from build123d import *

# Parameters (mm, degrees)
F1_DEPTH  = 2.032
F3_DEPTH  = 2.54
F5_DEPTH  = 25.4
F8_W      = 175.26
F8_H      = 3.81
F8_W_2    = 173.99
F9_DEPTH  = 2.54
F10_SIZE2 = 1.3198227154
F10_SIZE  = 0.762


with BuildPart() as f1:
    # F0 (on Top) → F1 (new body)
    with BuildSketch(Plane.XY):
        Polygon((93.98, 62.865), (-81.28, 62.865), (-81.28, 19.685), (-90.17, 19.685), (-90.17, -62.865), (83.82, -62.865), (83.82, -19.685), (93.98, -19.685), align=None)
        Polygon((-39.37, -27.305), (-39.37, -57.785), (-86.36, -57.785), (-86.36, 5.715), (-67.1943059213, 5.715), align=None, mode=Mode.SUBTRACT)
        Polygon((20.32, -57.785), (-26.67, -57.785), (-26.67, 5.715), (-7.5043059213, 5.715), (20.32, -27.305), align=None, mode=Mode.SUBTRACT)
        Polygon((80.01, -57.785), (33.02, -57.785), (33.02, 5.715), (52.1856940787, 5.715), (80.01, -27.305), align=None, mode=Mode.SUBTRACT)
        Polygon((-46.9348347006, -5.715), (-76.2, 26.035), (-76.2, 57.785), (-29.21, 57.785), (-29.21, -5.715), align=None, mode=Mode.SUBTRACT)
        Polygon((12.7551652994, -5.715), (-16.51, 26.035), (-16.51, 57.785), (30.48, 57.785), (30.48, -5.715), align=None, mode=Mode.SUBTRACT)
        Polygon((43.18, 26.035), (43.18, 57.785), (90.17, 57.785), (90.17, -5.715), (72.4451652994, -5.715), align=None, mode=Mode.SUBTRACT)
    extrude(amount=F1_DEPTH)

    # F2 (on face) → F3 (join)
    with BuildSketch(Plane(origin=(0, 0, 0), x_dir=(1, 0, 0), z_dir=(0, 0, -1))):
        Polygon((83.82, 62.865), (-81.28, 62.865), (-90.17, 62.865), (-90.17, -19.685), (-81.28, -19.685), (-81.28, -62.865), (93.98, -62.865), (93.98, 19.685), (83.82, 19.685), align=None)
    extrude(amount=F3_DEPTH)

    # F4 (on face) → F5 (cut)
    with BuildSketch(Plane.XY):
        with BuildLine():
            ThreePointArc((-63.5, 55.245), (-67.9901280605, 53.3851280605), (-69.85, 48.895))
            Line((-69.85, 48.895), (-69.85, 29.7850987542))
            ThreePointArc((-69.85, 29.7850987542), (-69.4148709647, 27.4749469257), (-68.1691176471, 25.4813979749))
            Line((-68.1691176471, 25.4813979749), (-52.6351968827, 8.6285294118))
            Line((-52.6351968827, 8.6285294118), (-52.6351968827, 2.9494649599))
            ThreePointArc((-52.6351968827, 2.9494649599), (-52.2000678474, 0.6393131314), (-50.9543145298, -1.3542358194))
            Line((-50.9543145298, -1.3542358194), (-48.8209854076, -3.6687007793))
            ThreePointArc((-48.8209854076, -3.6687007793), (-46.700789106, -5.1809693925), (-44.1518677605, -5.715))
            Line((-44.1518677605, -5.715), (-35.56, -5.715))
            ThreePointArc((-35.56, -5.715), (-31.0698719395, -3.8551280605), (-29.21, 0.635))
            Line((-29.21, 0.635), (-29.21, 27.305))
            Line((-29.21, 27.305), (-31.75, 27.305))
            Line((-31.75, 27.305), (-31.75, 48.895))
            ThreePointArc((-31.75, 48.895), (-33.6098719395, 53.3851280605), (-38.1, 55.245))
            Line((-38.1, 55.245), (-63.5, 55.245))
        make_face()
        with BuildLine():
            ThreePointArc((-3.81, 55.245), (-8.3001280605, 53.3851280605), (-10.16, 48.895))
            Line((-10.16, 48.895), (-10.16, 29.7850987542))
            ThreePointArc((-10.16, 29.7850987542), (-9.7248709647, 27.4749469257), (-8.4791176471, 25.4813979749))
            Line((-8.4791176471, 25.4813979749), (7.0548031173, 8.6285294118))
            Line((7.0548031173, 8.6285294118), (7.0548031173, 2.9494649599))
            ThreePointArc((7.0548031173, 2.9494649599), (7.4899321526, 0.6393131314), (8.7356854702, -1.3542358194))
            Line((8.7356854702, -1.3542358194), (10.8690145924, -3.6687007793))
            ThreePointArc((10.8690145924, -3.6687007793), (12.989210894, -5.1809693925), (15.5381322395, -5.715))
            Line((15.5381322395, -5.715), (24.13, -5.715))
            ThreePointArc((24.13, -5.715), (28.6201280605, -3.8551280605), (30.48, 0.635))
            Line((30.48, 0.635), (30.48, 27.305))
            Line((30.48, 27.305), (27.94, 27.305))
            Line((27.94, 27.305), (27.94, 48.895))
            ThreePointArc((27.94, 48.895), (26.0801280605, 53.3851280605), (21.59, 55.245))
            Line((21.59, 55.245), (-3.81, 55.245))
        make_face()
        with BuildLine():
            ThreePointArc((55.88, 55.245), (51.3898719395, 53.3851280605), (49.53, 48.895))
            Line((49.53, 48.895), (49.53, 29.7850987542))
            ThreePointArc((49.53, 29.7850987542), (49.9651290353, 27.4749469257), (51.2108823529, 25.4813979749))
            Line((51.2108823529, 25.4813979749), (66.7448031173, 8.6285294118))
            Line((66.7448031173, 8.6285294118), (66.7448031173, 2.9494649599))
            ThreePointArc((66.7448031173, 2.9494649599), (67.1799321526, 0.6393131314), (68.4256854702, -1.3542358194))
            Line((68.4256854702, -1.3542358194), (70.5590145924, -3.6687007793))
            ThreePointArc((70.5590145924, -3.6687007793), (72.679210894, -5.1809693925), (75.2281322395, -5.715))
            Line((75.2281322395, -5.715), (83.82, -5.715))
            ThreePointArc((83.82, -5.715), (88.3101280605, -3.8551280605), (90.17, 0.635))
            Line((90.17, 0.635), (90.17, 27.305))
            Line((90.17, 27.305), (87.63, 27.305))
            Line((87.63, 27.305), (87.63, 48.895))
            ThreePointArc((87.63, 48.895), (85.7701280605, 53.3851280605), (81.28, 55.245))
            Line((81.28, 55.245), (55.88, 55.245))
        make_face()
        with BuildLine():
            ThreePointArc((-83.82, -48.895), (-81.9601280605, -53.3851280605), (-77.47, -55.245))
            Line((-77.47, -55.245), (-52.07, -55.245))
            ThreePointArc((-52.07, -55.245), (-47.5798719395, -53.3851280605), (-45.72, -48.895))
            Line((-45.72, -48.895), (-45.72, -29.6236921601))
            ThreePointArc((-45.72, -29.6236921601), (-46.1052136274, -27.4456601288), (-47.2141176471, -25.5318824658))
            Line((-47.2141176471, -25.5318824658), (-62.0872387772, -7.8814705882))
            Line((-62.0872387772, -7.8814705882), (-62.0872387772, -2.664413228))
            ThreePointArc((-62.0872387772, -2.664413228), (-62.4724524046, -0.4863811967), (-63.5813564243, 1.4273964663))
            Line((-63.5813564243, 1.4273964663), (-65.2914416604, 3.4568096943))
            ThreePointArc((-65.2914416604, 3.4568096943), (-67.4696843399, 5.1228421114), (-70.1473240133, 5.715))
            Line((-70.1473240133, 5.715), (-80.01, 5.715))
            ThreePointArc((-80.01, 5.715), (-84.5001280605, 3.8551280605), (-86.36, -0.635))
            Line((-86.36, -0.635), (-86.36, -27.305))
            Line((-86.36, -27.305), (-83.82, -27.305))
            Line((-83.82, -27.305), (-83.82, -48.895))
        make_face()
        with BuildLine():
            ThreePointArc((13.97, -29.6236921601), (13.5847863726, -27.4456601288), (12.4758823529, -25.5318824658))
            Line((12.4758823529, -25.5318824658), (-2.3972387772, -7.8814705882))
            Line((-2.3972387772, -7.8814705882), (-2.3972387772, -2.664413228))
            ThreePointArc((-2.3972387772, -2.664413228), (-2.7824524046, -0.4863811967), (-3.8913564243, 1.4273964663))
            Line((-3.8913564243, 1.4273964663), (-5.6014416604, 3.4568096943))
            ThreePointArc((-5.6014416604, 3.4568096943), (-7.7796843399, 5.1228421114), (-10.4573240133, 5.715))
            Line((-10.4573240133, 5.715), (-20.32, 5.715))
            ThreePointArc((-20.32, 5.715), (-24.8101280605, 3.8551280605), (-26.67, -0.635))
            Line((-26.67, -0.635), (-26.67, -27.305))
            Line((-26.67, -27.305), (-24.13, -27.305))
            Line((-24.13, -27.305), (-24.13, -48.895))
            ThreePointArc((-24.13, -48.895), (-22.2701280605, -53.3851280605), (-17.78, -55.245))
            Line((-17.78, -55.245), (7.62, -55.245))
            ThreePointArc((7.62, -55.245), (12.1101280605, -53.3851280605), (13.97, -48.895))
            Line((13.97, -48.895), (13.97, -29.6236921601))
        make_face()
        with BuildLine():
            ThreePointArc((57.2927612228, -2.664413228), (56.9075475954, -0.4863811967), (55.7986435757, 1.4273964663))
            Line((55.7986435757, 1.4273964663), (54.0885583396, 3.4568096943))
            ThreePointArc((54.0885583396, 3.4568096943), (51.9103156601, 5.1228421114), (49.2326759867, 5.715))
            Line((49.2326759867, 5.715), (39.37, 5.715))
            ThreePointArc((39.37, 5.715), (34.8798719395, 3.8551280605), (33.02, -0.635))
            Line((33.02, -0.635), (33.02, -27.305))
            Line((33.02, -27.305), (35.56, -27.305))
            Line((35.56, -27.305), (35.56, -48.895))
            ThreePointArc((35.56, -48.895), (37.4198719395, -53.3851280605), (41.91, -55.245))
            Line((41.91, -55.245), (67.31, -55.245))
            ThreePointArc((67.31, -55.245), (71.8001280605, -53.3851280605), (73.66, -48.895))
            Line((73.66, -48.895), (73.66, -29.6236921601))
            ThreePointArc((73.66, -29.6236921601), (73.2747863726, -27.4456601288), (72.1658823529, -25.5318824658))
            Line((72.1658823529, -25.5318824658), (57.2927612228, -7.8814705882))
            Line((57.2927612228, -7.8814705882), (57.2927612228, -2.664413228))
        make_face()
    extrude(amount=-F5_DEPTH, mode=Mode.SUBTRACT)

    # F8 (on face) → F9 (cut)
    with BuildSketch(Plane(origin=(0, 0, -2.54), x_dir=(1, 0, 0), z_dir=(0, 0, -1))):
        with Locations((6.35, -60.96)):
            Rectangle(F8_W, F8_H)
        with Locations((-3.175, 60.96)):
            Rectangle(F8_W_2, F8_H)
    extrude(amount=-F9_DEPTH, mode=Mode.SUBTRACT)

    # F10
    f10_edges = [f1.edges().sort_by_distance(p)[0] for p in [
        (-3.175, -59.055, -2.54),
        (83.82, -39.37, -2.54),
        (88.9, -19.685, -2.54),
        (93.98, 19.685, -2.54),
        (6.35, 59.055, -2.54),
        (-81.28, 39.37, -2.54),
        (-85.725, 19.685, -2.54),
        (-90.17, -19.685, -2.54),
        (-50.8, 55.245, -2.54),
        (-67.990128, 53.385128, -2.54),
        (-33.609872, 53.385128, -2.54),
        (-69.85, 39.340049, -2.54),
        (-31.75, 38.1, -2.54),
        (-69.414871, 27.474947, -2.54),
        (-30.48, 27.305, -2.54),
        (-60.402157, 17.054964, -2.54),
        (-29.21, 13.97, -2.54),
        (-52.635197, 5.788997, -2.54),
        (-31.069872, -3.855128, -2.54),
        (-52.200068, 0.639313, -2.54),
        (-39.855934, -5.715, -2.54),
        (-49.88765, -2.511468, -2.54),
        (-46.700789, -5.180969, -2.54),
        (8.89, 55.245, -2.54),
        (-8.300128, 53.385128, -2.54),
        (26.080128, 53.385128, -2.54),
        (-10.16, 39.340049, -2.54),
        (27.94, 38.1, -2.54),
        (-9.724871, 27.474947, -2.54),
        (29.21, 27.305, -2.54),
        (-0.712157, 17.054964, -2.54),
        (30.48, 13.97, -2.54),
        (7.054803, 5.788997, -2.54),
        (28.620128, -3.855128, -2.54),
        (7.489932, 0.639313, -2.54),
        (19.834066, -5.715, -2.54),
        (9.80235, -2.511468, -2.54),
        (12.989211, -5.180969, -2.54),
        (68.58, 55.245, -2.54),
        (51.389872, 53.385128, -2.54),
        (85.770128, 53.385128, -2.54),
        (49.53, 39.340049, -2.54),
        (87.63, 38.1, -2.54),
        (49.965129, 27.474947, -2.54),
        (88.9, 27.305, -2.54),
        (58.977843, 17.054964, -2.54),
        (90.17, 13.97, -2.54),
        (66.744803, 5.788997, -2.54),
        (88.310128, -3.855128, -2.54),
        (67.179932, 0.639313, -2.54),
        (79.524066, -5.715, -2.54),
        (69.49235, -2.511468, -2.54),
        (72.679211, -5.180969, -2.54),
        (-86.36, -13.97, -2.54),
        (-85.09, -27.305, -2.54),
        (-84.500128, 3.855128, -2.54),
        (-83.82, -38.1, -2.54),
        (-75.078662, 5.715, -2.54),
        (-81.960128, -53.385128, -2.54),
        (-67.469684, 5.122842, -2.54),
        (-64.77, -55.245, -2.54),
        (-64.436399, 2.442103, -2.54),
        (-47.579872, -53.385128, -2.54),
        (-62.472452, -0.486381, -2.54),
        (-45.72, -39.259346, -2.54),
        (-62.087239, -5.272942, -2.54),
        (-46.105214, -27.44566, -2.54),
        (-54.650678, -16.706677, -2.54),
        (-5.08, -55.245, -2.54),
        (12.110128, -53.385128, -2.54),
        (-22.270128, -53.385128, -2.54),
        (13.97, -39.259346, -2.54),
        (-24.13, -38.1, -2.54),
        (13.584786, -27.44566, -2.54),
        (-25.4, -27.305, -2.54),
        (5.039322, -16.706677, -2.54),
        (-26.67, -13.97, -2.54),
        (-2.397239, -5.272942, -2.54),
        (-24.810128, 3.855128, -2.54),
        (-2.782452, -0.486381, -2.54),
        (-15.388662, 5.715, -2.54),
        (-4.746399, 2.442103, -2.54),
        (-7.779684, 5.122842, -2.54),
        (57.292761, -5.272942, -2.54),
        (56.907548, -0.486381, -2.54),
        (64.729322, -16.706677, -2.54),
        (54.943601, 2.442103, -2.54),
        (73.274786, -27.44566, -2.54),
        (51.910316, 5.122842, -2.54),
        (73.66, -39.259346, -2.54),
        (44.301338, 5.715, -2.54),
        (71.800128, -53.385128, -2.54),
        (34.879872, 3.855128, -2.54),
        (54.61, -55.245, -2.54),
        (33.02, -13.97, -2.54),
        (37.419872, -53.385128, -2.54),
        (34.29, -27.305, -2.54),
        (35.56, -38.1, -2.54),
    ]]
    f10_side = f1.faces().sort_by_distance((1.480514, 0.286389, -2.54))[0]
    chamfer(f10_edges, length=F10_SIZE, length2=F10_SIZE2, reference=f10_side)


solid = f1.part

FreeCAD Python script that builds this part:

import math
import FreeCAD as App
import Part
import Sketcher
from FreeCAD import Vector
Q = App.Units.Quantity


def edges_at(feature, points):
    """Names of the edges that pass closest to the given points."""
    edges = feature.Shape.Edges
    near = lambda p: min(range(len(edges)), key=lambda i: edges[i].distToShape(Part.Vertex(*p))[0])
    return sorted({f"Edge{near(p) + 1}" for p in points})


def add_polygon(sketch, points):
    """Adds a closed chain of lines whose ends are joined by coincident constraints."""
    first, n = sketch.GeometryCount, len(points)
    for a, b in zip(points, points[1:] + points[:1]):
        sketch.addGeometry(Part.LineSegment(App.Vector(*a, 0), App.Vector(*b, 0)), False)
    for i in range(n):
        sketch.addConstraint(Sketcher.Constraint("Coincident", first + i, 2, first + (i + 1) % n, 1))

doc = App.newDocument("Part")
body = doc.addObject("PartDesign::Body", "Body")

sketch1 = doc.addObject("Sketcher::SketchObject", "Sketch")
body.addObject(sketch1)
sketch1.AttachmentSupport = (doc.XY_Plane, [""])
sketch1.MapMode = "FlatFace"
add_polygon(sketch1, [(93.98, 62.865), (-81.28, 62.865), (-81.28, 19.685), (-90.17, 19.685), (-90.17, -62.865), (83.82, -62.865), (83.82, -19.685), (93.98, -19.685)])
add_polygon(sketch1, [(-67.194306, 5.715), (-39.37, -27.305), (-39.37, -57.785), (-86.36, -57.785), (-86.36, 5.715)])
add_polygon(sketch1, [(20.32, -27.305), (20.32, -57.785), (-26.67, -57.785), (-26.67, 5.715), (-7.504306, 5.715)])
add_polygon(sketch1, [(80.01, -27.305), (80.01, -57.785), (33.02, -57.785), (33.02, 5.715), (52.185694, 5.715)])
add_polygon(sketch1, [(-29.21, -5.715), (-46.934835, -5.715), (-76.2, 26.035), (-76.2, 57.785), (-29.21, 57.785)])
add_polygon(sketch1, [(30.48, -5.715), (12.755165, -5.715), (-16.51, 26.035), (-16.51, 57.785), (30.48, 57.785)])
add_polygon(sketch1, [(72.445165, -5.715), (43.18, 26.035), (43.18, 57.785), (90.17, 57.785), (90.17, -5.715)])
sketch1.addConstraint([
    Sketcher.Constraint("Horizontal", 0),
    Sketcher.Constraint("Vertical", 1),
    Sketcher.Constraint("Horizontal", 2),
    Sketcher.Constraint("Vertical", 3),
    Sketcher.Constraint("Horizontal", 4),
    Sketcher.Constraint("Vertical", 5),
    Sketcher.Constraint("Horizontal", 6),
    Sketcher.Constraint("Vertical", 7),
    Sketcher.Constraint("Vertical", 9),
    Sketcher.Constraint("Horizontal", 10),
    Sketcher.Constraint("Vertical", 11),
    Sketcher.Constraint("Horizontal", 12),
    Sketcher.Constraint("Vertical", 13),
    Sketcher.Constraint("Horizontal", 14),
    Sketcher.Constraint("Vertical", 15),
    Sketcher.Constraint("Horizontal", 16),
    Sketcher.Constraint("Vertical", 18),
    Sketcher.Constraint("Horizontal", 19),
    Sketcher.Constraint("Vertical", 20),
    Sketcher.Constraint("Horizontal", 21),
    Sketcher.Constraint("Horizontal", 23),
    Sketcher.Constraint("Vertical", 25),
    Sketcher.Constraint("Horizontal", 26),
    Sketcher.Constraint("Vertical", 27),
    Sketcher.Constraint("Horizontal", 28),
    Sketcher.Constraint("Vertical", 30),
    Sketcher.Constraint("Horizontal", 31),
    Sketcher.Constraint("Vertical", 32),
    Sketcher.Constraint("Vertical", 34),
    Sketcher.Constraint("Horizontal", 35),
    Sketcher.Constraint("Vertical", 36),
    Sketcher.Constraint("Horizontal", 37),
    Sketcher.Constraint("Parallel", 8, 17),
    Sketcher.Constraint("Parallel", 17, 22),
    Sketcher.Constraint("Parallel", 24, 29),
    Sketcher.Constraint("Parallel", 29, 33),
    Sketcher.Constraint("Horizontal", 10, 2, 13, 2),
    Sketcher.Constraint("Horizontal", 12, 2, 15, 2),
    Sketcher.Constraint("Horizontal", 8, 2, 17, 2),
    Sketcher.Constraint("Horizontal", 14, 2, 18, 2),
    Sketcher.Constraint("Horizontal", 16, 2, 20, 2),
    Sketcher.Constraint("Horizontal", 17, 2, 22, 2),
    Sketcher.Constraint("Horizontal", 27, 2, 28, 2),
    Sketcher.Constraint("Horizontal", 24, 2, 29, 2),
    Sketcher.Constraint("Horizontal", 26, 2, 30, 2),
    Sketcher.Constraint("Horizontal", 29, 2, 33, 2),
    Sketcher.Constraint("Horizontal", 31, 2, 34, 2),
    Sketcher.Constraint("Horizontal", 32, 2, 36, 2),
    Sketcher.Constraint("Equal", 10, 14),
    Sketcher.Constraint("Equal", 14, 19),
    Sketcher.Constraint("Equal", 19, 26),
    Sketcher.Constraint("Equal", 23, 28),
    Sketcher.Constraint("Equal", 31, 35),
    Sketcher.Constraint("Equal", 1, 5),
    Sketcher.Constraint("Equal", 20, 27),
    Sketcher.Constraint("Equal", 22, 24),
    Sketcher.Constraint("DistanceX", 0, 2, 0, 1, Q("6.9 in")),
    Sketcher.Constraint("DistanceX", 6, 1, 6, 2, Q("0.4 in")),
    Sketcher.Constraint("DistanceY", 1, 2, 1, 1, Q("1.7 in")),
    Sketcher.Constraint("DistanceY", 9, 2, 9, 1, Q("1.2 in")),
    Sketcher.Constraint("DistanceY", 11, 1, 11, 2, Q("2.5 in")),
    Sketcher.Constraint("DistanceX", 24, 2, -1, 1, Q("3 in")),
    Sketcher.Constraint("DistanceX", 3, 2, 8, 2, Q("2 in")),
    Sketcher.Constraint("DistanceX", 19, 2, 4, 2, Q("2 in")),
    Sketcher.Constraint("DistanceY", 5, 2, 20, 2, Q("1 in")),
    Sketcher.Constraint("DistanceX", 34, 2, 7, 2, Q("2 in")),
    Sketcher.Constraint("Distance", 8, Q("1.7 in")),
    Sketcher.Constraint("DistanceX", 2, 2, 2, 1, Q("0.35 in")),
    Sketcher.Constraint("DistanceX", 10, 2, 10, 1, Q("1.85 in")),
    Sketcher.Constraint("DistanceY", 3, 2, 3, 1, Q("3.25 in")),
    Sketcher.Constraint("DistanceY", 25, 1, 25, 2, Q("1.25 in")),
    Sketcher.Constraint("DistanceX", 0, 2, -1, 1, Q("3.2 in")),
    Sketcher.Constraint("DistanceX", -1, 1, 13, 2, Q("0.8 in")),
    Sketcher.Constraint("DistanceX", -1, 1, 31, 2, Q("1.2 in")),
    Sketcher.Constraint("DistanceY", 12, 2, 24, 2, Q("0.8 in")),
    Sketcher.Constraint("DistanceY", -1, 1, 0, 2, Q("2.475 in")),
])
pad1 = doc.addObject("PartDesign::Pad", "Pad")
body.addObject(pad1)
pad1.Profile = sketch1
pad1.Length = Q("0.08 in")

sketch2 = doc.addObject("Sketcher::SketchObject", "Sketch001")
body.addObject(sketch2)
sketch2.AttachmentSupport = (doc.XY_Plane, [""])
sketch2.MapMode = "FlatFace"
add_polygon(sketch2, [(83.82, -62.865), (-90.17, -62.865), (-90.17, 19.685), (-81.28, 19.685), (-81.28, 62.865), (93.98, 62.865), (93.98, -19.685), (83.82, -19.685)])
sketch2.addConstraint([
    Sketcher.Constraint("Horizontal", 0),
    Sketcher.Constraint("Vertical", 1),
    Sketcher.Constraint("Horizontal", 2),
    Sketcher.Constraint("Vertical", 3),
    Sketcher.Constraint("Horizontal", 4),
    Sketcher.Constraint("Vertical", 5),
    Sketcher.Constraint("Horizontal", 6),
    Sketcher.Constraint("Vertical", 7),
    Sketcher.Constraint("Equal", 1, 5),
    Sketcher.Constraint("DistanceX", 4, 1, 4, 2, Q("6.9 in")),
    Sketcher.Constraint("DistanceX", 6, 2, 6, 1, Q("0.4 in")),
    Sketcher.Constraint("DistanceY", 3, 1, 3, 2, Q("1.7 in")),
    Sketcher.Constraint("DistanceX", 0, 2, 0, 1, Q("6.85 in")),
    Sketcher.Constraint("DistanceY", 1, 1, 1, 2, Q("3.25 in")),
    Sketcher.Constraint("DistanceX", 2, 2, -1, 1, Q("3.2 in")),
    Sketcher.Constraint("DistanceY", 0, 2, -1, 1, Q("2.475 in")),
])
pad2 = doc.addObject("PartDesign::Pad", "Pad001")
body.addObject(pad2)
pad2.Profile = sketch2
pad2.Length = Q("0.1 in")
pad2.Reversed = True

sketch3 = doc.addObject("Sketcher::SketchObject", "Sketch002")
body.addObject(sketch3)
sketch3.AttachmentSupport = (doc.XY_Plane, [""])
sketch3.MapMode = "FlatFace"
sketch3.addGeometry([
    Part.ArcOfCircle(Part.Circle(Vector(-63.5, 48.895, 0), Vector(0, 0, 1), 6.35), math.radians(90), math.radians(180)),
    Part.LineSegment(Vector(-69.85, 48.895, 0), Vector(-69.85, 29.785099, 0)),
    Part.ArcOfCircle(Part.Circle(Vector(-63.5, 29.785099, 0), Vector(0, 0, 1), 6.35), math.radians(180), math.radians(222.667925)),
    Part.LineSegment(Vector(-68.169118, 25.481398, 0), Vector(-52.635197, 8.628529, 0)),
    Part.LineSegment(Vector(-52.635197, 8.628529, 0), Vector(-52.635197, 2.949465, 0)),
    Part.ArcOfCircle(Part.Circle(Vector(-46.285197, 2.949465, 0), Vector(0, 0, 1), 6.35), math.radians(180), math.radians(222.667925)),
    Part.LineSegment(Vector(-50.954315, -1.354236, 0), Vector(-48.820985, -3.668701, 0)),
    Part.ArcOfCircle(Part.Circle(Vector(-44.151868, 0.635, 0), Vector(0, 0, 1), 6.35), math.radians(-137.332075), math.radians(-90)),
    Part.LineSegment(Vector(-44.151868, -5.715, 0), Vector(-35.56, -5.715, 0)),
    Part.ArcOfCircle(Part.Circle(Vector(-35.56, 0.635, 0), Vector(0, 0, 1), 6.35), math.radians(-90), math.radians(0)),
    Part.LineSegment(Vector(-29.21, 0.635, 0), Vector(-29.21, 27.305, 0)),
    Part.LineSegment(Vector(-29.21, 27.305, 0), Vector(-31.75, 27.305, 0)),
    Part.LineSegment(Vector(-31.75, 27.305, 0), Vector(-31.75, 48.895, 0)),
    Part.ArcOfCircle(Part.Circle(Vector(-38.1, 48.895, 0), Vector(0, 0, 1), 6.35), math.radians(0), math.radians(90)),
    Part.LineSegment(Vector(-38.1, 55.245, 0), Vector(-63.5, 55.245, 0)),
    Part.ArcOfCircle(Part.Circle(Vector(-3.81, 48.895, 0), Vector(0, 0, 1), 6.35), math.radians(90), math.radians(180)),
    Part.LineSegment(Vector(-10.16, 48.895, 0), Vector(-10.16, 29.785099, 0)),
    Part.ArcOfCircle(Part.Circle(Vector(-3.81, 29.785099, 0), Vector(0, 0, 1), 6.35), math.radians(180), math.radians(222.667925)),
    Part.LineSegment(Vector(-8.479118, 25.481398, 0), Vector(7.054803, 8.628529, 0)),
    Part.LineSegment(Vector(7.054803, 8.628529, 0), Vector(7.054803, 2.949465, 0)),
    Part.ArcOfCircle(Part.Circle(Vector(13.404803, 2.949465, 0), Vector(0, 0, 1), 6.35), math.radians(180), math.radians(222.667925)),
    Part.LineSegment(Vector(8.735685, -1.354236, 0), Vector(10.869015, -3.668701, 0)),
    Part.ArcOfCircle(Part.Circle(Vector(15.538132, 0.635, 0), Vector(0, 0, 1), 6.35), math.radians(-137.332075), math.radians(-90)),
    Part.LineSegment(Vector(15.538132, -5.715, 0), Vector(24.13, -5.715, 0)),
    Part.ArcOfCircle(Part.Circle(Vector(24.13, 0.635, 0), Vector(0, 0, 1), 6.35), math.radians(-90), math.radians(0)),
    Part.LineSegment(Vector(30.48, 0.635, 0), Vector(30.48, 27.305, 0)),
    Part.LineSegment(Vector(30.48, 27.305, 0), Vector(27.94, 27.305, 0)),
    Part.LineSegment(Vector(27.94, 27.305, 0), Vector(27.94, 48.895, 0)),
    Part.ArcOfCircle(Part.Circle(Vector(21.59, 48.895, 0), Vector(0, 0, 1), 6.35), math.radians(0), math.radians(90)),
    Part.LineSegment(Vector(21.59, 55.245, 0), Vector(-3.81, 55.245, 0)),
    Part.ArcOfCircle(Part.Circle(Vector(55.88, 48.895, 0), Vector(0, 0, 1), 6.35), math.radians(90), math.radians(180)),
    Part.LineSegment(Vector(49.53, 48.895, 0), Vector(49.53, 29.785099, 0)),
    Part.ArcOfCircle(Part.Circle(Vector(55.88, 29.785099, 0), Vector(0, 0, 1), 6.35), math.radians(180), math.radians(222.667925)),
    Part.LineSegment(Vector(51.210882, 25.481398, 0), Vector(66.744803, 8.628529, 0)),
    Part.LineSegment(Vector(66.744803, 8.628529, 0), Vector(66.744803, 2.949465, 0)),
    Part.ArcOfCircle(Part.Circle(Vector(73.094803, 2.949465, 0), Vector(0, 0, 1), 6.35), math.radians(180), math.radians(222.667925)),
    Part.LineSegment(Vector(68.425685, -1.354236, 0), Vector(70.559015, -3.668701, 0)),
    Part.ArcOfCircle(Part.Circle(Vector(75.228132, 0.635, 0), Vector(0, 0, 1), 6.35), math.radians(-137.332075), math.radians(-90)),
    Part.LineSegment(Vector(75.228132, -5.715, 0), Vector(83.82, -5.715, 0)),
    Part.ArcOfCircle(Part.Circle(Vector(83.82, 0.635, 0), Vector(0, 0, 1), 6.35), math.radians(-90), math.radians(0)),
    Part.LineSegment(Vector(90.17, 0.635, 0), Vector(90.17, 27.305, 0)),
    Part.LineSegment(Vector(90.17, 27.305, 0), Vector(87.63, 27.305, 0)),
    Part.LineSegment(Vector(87.63, 27.305, 0), Vector(87.63, 48.895, 0)),
    Part.ArcOfCircle(Part.Circle(Vector(81.28, 48.895, 0), Vector(0, 0, 1), 6.35), math.radians(0), math.radians(90)),
    Part.LineSegment(Vector(81.28, 55.245, 0), Vector(55.88, 55.245, 0)),
    Part.ArcOfCircle(Part.Circle(Vector(-77.47, -48.895, 0), Vector(0, 0, 1), 6.35), math.radians(180), math.radians(270)),
    Part.LineSegment(Vector(-77.47, -55.245, 0), Vector(-52.07, -55.245, 0)),
    Part.ArcOfCircle(Part.Circle(Vector(-52.07, -48.895, 0), Vector(0, 0, 1), 6.35), math.radians(-90), math.radians(0)),
    Part.LineSegment(Vector(-45.72, -48.895, 0), Vector(-45.72, -29.623692, 0)),
    Part.ArcOfCircle(Part.Circle(Vector(-52.07, -29.623692, 0), Vector(0, 0, 1), 6.35), math.radians(0), math.radians(40.119167)),
    Part.LineSegment(Vector(-47.214118, -25.531882, 0), Vector(-62.087239, -7.881471, 0)),
    Part.LineSegment(Vector(-62.087239, -7.881471, 0), Vector(-62.087239, -2.664413, 0)),
    Part.ArcOfCircle(Part.Circle(Vector(-68.437239, -2.664413, 0), Vector(0, 0, 1), 6.35), math.radians(0), math.radians(40.119167)),
    Part.LineSegment(Vector(-63.581356, 1.427396, 0), Vector(-65.291442, 3.45681, 0)),
    Part.ArcOfCircle(Part.Circle(Vector(-70.147324, -0.635, 0), Vector(0, 0, 1), 6.35), math.radians(40.119167), math.radians(90)),
    Part.LineSegment(Vector(-70.147324, 5.715, 0), Vector(-80.01, 5.715, 0)),
    Part.ArcOfCircle(Part.Circle(Vector(-80.01, -0.635, 0), Vector(0, 0, 1), 6.35), math.radians(90), math.radians(180)),
    Part.LineSegment(Vector(-86.36, -0.635, 0), Vector(-86.36, -27.305, 0)),
    Part.LineSegment(Vector(-86.36, -27.305, 0), Vector(-83.82, -27.305, 0)),
    Part.LineSegment(Vector(-83.82, -27.305, 0), Vector(-83.82, -48.895, 0)),
    Part.ArcOfCircle(Part.Circle(Vector(7.62, -29.623692, 0), Vector(0, 0, 1), 6.35), math.radians(0), math.radians(40.119167)),
    Part.LineSegment(Vector(12.475882, -25.531882, 0), Vector(-2.397239, -7.881471, 0)),
    Part.LineSegment(Vector(-2.397239, -7.881471, 0), Vector(-2.397239, -2.664413, 0)),
    Part.ArcOfCircle(Part.Circle(Vector(-8.747239, -2.664413, 0), Vector(0, 0, 1), 6.35), math.radians(0), math.radians(40.119167)),
    Part.LineSegment(Vector(-3.891356, 1.427396, 0), Vector(-5.601442, 3.45681, 0)),
    Part.ArcOfCircle(Part.Circle(Vector(-10.457324, -0.635, 0), Vector(0, 0, 1), 6.35), math.radians(40.119167), math.radians(90)),
    Part.LineSegment(Vector(-10.457324, 5.715, 0), Vector(-20.32, 5.715, 0)),
    Part.ArcOfCircle(Part.Circle(Vector(-20.32, -0.635, 0), Vector(0, 0, 1), 6.35), math.radians(90), math.radians(180)),
    Part.LineSegment(Vector(-26.67, -0.635, 0), Vector(-26.67, -27.305, 0)),
    Part.LineSegment(Vector(-26.67, -27.305, 0), Vector(-24.13, -27.305, 0)),
    Part.LineSegment(Vector(-24.13, -27.305, 0), Vector(-24.13, -48.895, 0)),
    Part.ArcOfCircle(Part.Circle(Vector(-17.78, -48.895, 0), Vector(0, 0, 1), 6.35), math.radians(180), math.radians(270)),
    Part.LineSegment(Vector(-17.78, -55.245, 0), Vector(7.62, -55.245, 0)),
    Part.ArcOfCircle(Part.Circle(Vector(7.62, -48.895, 0), Vector(0, 0, 1), 6.35), math.radians(-90), math.radians(0)),
    Part.LineSegment(Vector(13.97, -48.895, 0), Vector(13.97, -29.623692, 0)),
    Part.ArcOfCircle(Part.Circle(Vector(50.942761, -2.664413, 0), Vector(0, 0, 1), 6.35), math.radians(0), math.radians(40.119167)),
    Part.LineSegment(Vector(55.798644, 1.427396, 0), Vector(54.088558, 3.45681, 0)),
    Part.ArcOfCircle(Part.Circle(Vector(49.232676, -0.635, 0), Vector(0, 0, 1), 6.35), math.radians(40.119167), math.radians(90)),
    Part.LineSegment(Vector(49.232676, 5.715, 0), Vector(39.37, 5.715, 0)),
    Part.ArcOfCircle(Part.Circle(Vector(39.37, -0.635, 0), Vector(0, 0, 1), 6.35), math.radians(90), math.radians(180)),
    Part.LineSegment(Vector(33.02, -0.635, 0), Vector(33.02, -27.305, 0)),
    Part.LineSegment(Vector(33.02, -27.305, 0), Vector(35.56, -27.305, 0)),
    Part.LineSegment(Vector(35.56, -27.305, 0), Vector(35.56, -48.895, 0)),
    Part.ArcOfCircle(Part.Circle(Vector(41.91, -48.895, 0), Vector(0, 0, 1), 6.35), math.radians(180), math.radians(270)),
    Part.LineSegment(Vector(41.91, -55.245, 0), Vector(67.31, -55.245, 0)),
    Part.ArcOfCircle(Part.Circle(Vector(67.31, -48.895, 0), Vector(0, 0, 1), 6.35), math.radians(-90), math.radians(0)),
    Part.LineSegment(Vector(73.66, -48.895, 0), Vector(73.66, -29.623692, 0)),
    Part.ArcOfCircle(Part.Circle(Vector(67.31, -29.623692, 0), Vector(0, 0, 1), 6.35), math.radians(0), math.radians(40.119167)),
    Part.LineSegment(Vector(72.165882, -25.531882, 0), Vector(57.292761, -7.881471, 0)),
    Part.LineSegment(Vector(57.292761, -7.881471, 0), Vector(57.292761, -2.664413, 0)),
], False)
sketch3.addConstraint([
    Sketcher.Constraint("Tangent", 0, 2, 1, 1),
    Sketcher.Constraint("Tangent", 1, 2, 2, 1),
    Sketcher.Constraint("Tangent", 2, 2, 3, 1),
    Sketcher.Constraint("Coincident", 3, 2, 4, 1),
    Sketcher.Constraint("Tangent", 4, 2, 5, 1),
    Sketcher.Constraint("Tangent", 5, 2, 6, 1),
    Sketcher.Constraint("Tangent", 6, 2, 7, 1),
    Sketcher.Constraint("Tangent", 7, 2, 8, 1),
    Sketcher.Constraint("Tangent", 8, 2, 9, 1),
    Sketcher.Constraint("Tangent", 9, 2, 10, 1),
    Sketcher.Constraint("Coincident", 10, 2, 11, 1),
    Sketcher.Constraint("Coincident", 11, 2, 12, 1),
    Sketcher.Constraint("Tangent", 12, 2, 13, 1),
    Sketcher.Constraint("Tangent", 13, 2, 14, 1),
    Sketcher.Constraint("Tangent", 14, 2, 0, 1),
    Sketcher.Constraint("Tangent", 15, 2, 16, 1),
    Sketcher.Constraint("Tangent", 16, 2, 17, 1),
    Sketcher.Constraint("Tangent", 17, 2, 18, 1),
    Sketcher.Constraint("Coincident", 18, 2, 19, 1),
    Sketcher.Constraint("Tangent", 19, 2, 20, 1),
    Sketcher.Constraint("Tangent", 20, 2, 21, 1),
    Sketcher.Constraint("Tangent", 21, 2, 22, 1),
    Sketcher.Constraint("Tangent", 22, 2, 23, 1),
    Sketcher.Constraint("Tangent", 23, 2, 24, 1),
    Sketcher.Constraint("Tangent", 24, 2, 25, 1),
    Sketcher.Constraint("Coincident", 25, 2, 26, 1),
    Sketcher.Constraint("Coincident", 26, 2, 27, 1),
    Sketcher.Constraint("Tangent", 27, 2, 28, 1),
    Sketcher.Constraint("Tangent", 28, 2, 29, 1),
    Sketcher.Constraint("Tangent", 29, 2, 15, 1),
    Sketcher.Constraint("Tangent", 30, 2, 31, 1),
    Sketcher.Constraint("Tangent", 31, 2, 32, 1),
    Sketcher.Constraint("Tangent", 32, 2, 33, 1),
    Sketcher.Constraint("Coincident", 33, 2, 34, 1),
    Sketcher.Constraint("Tangent", 34, 2, 35, 1),
    Sketcher.Constraint("Tangent", 35, 2, 36, 1),
    Sketcher.Constraint("Tangent", 36, 2, 37, 1),
    Sketcher.Constraint("Tangent", 37, 2, 38, 1),
    Sketcher.Constraint("Tangent", 38, 2, 39, 1),
    Sketcher.Constraint("Tangent", 39, 2, 40, 1),
    Sketcher.Constraint("Coincident", 40, 2, 41, 1),
    Sketcher.Constraint("Coincident", 41, 2, 42, 1),
    Sketcher.Constraint("Tangent", 42, 2, 43, 1),
    Sketcher.Constraint("Tangent", 43, 2, 44, 1),
    Sketcher.Constraint("Tangent", 44, 2, 30, 1),
    Sketcher.Constraint("Tangent", 45, 2, 46, 1),
    Sketcher.Constraint("Tangent", 46, 2, 47, 1),
    Sketcher.Constraint("Tangent", 47, 2, 48, 1),
    Sketcher.Constraint("Tangent", 48, 2, 49, 1),
    Sketcher.Constraint("Tangent", 49, 2, 50, 1),
    Sketcher.Constraint("Coincident", 50, 2, 51, 1),
    Sketcher.Constraint("Tangent", 51, 2, 52, 1),
    Sketcher.Constraint("Tangent", 52, 2, 53, 1),
    Sketcher.Constraint("Tangent", 53, 2, 54, 1),
    Sketcher.Constraint("Tangent", 54, 2, 55, 1),
    Sketcher.Constraint("Tangent", 55, 2, 56, 1),
    Sketcher.Constraint("Tangent", 56, 2, 57, 1),
    Sketcher.Constraint("Coincident", 57, 2, 58, 1),
    Sketcher.Constraint("Coincident", 58, 2, 59, 1),
    Sketcher.Constraint("Tangent", 59, 2, 45, 1),
    Sketcher.Constraint("Tangent", 60, 2, 61, 1),
    Sketcher.Constraint("Coincident", 61, 2, 62, 1),
    Sketcher.Constraint("Tangent", 62, 2, 63, 1),
    Sketcher.Constraint("Tangent", 63, 2, 64, 1),
    Sketcher.Constraint("Tangent", 64, 2, 65, 1),
    Sketcher.Constraint("Tangent", 65, 2, 66, 1),
    Sketcher.Constraint("Tangent", 66, 2, 67, 1),
    Sketcher.Constraint("Tangent", 67, 2, 68, 1),
    Sketcher.Constraint("Coincident", 68, 2, 69, 1),
    Sketcher.Constraint("Coincident", 69, 2, 70, 1),
    Sketcher.Constraint("Tangent", 70, 2, 71, 1),
    Sketcher.Constraint("Tangent", 71, 2, 72, 1),
    Sketcher.Constraint("Tangent", 72, 2, 73, 1),
    Sketcher.Constraint("Tangent", 73, 2, 74, 1),
    Sketcher.Constraint("Tangent", 74, 2, 60, 1),
    Sketcher.Constraint("Tangent", 75, 2, 76, 1),
    Sketcher.Constraint("Tangent", 76, 2, 77, 1),
    Sketcher.Constraint("Tangent", 77, 2, 78, 1),
    Sketcher.Constraint("Tangent", 78, 2, 79, 1),
    Sketcher.Constraint("Tangent", 79, 2, 80, 1),
    Sketcher.Constraint("Coincident", 80, 2, 81, 1),
    Sketcher.Constraint("Coincident", 81, 2, 82, 1),
    Sketcher.Constraint("Tangent", 82, 2, 83, 1),
    Sketcher.Constraint("Tangent", 83, 2, 84, 1),
    Sketcher.Constraint("Tangent", 84, 2, 85, 1),
    Sketcher.Constraint("Tangent", 85, 2, 86, 1),
    Sketcher.Constraint("Tangent", 86, 2, 87, 1),
    Sketcher.Constraint("Tangent", 87, 2, 88, 1),
    Sketcher.Constraint("Coincident", 88, 2, 89, 1),
    Sketcher.Constraint("Tangent", 89, 2, 75, 1),
    Sketcher.Constraint("Vertical", 1),
    Sketcher.Constraint("Vertical", 4),
    Sketcher.Constraint("Horizontal", 8),
    Sketcher.Constraint("Vertical", 10),
    Sketcher.Constraint("Horizontal", 11),
    Sketcher.Constraint("Vertical", 12),
    Sketcher.Constraint("Horizontal", 14),
    Sketcher.Constraint("Vertical", 16),
    Sketcher.Constraint("Vertical", 19),
    Sketcher.Constraint("Horizontal", 23),
    Sketcher.Constraint("Vertical", 25),
    Sketcher.Constraint("Horizontal", 26),
    Sketcher.Constraint("Vertical", 27),
    Sketcher.Constraint("Horizontal", 29),
    Sketcher.Constraint("Vertical", 31),
    Sketcher.Constraint("Vertical", 34),
    Sketcher.Constraint("Horizontal", 38),
    Sketcher.Constraint("Vertical", 40),
    Sketcher.Constraint("Horizontal", 41),
    Sketcher.Constraint("Vertical", 42),
    Sketcher.Constraint("Horizontal", 44),
    Sketcher.Constraint("Horizontal", 46),
    Sketcher.Constraint("Vertical", 48),
    Sketcher.Constraint("Vertical", 51),
    Sketcher.Constraint("Horizontal", 55),
    Sketcher.Constraint("Vertical", 57),
    Sketcher.Constraint("Horizontal", 58),
    Sketcher.Constraint("Vertical", 59),
    Sketcher.Constraint("Vertical", 62),
    Sketcher.Constraint("Horizontal", 66),
    Sketcher.Constraint("Vertical", 68),
    Sketcher.Constraint("Horizontal", 69),
    Sketcher.Constraint("Vertical", 70),
    Sketcher.Constraint("Horizontal", 72),
    Sketcher.Constraint("Vertical", 74),
    Sketcher.Constraint("Horizontal", 78),
    Sketcher.Constraint("Vertical", 80),
    Sketcher.Constraint("Horizontal", 81),
    Sketcher.Constraint("Vertical", 82),
    Sketcher.Constraint("Horizontal", 84),
    Sketcher.Constraint("Vertical", 86),
    Sketcher.Constraint("Vertical", 89),
    Sketcher.Constraint("Equal", 0, 2),
    Sketcher.Constraint("Equal", 2, 5),
    Sketcher.Constraint("Equal", 5, 7),
    Sketcher.Constraint("Equal", 7, 9),
    Sketcher.Constraint("Equal", 9, 13),
    Sketcher.Constraint("Equal", 13, 15),
    Sketcher.Constraint("Equal", 15, 17),
    Sketcher.Constraint("Equal", 17, 20),
    Sketcher.Constraint("Equal", 20, 22),
    Sketcher.Constraint("Equal", 22, 24),
    Sketcher.Constraint("Equal", 24, 28),
    Sketcher.Constraint("Equal", 28, 30),
    Sketcher.Constraint("Equal", 30, 32),
    Sketcher.Constraint("Equal", 32, 35),
    Sketcher.Constraint("Equal", 35, 37),
    Sketcher.Constraint("Equal", 37, 39),
    Sketcher.Constraint("Equal", 39, 43),
    Sketcher.Constraint("Equal", 43, 45),
    Sketcher.Constraint("Equal", 45, 47),
    Sketcher.Constraint("Equal", 47, 49),
    Sketcher.Constraint("Equal", 49, 52),
    Sketcher.Constraint("Equal", 52, 54),
    Sketcher.Constraint("Equal", 54, 56),
    Sketcher.Constraint("Equal", 56, 60),
    Sketcher.Constraint("Equal", 60, 63),
    Sketcher.Constraint("Equal", 63, 65),
    Sketcher.Constraint("Equal", 65, 67),
    Sketcher.Constraint("Equal", 67, 71),
    Sketcher.Constraint("Equal", 71, 73),
    Sketcher.Constraint("Equal", 73, 75),
    Sketcher.Constraint("Equal", 75, 77),
    Sketcher.Constraint("Equal", 77, 79),
    Sketcher.Constraint("Equal", 79, 83),
    Sketcher.Constraint("Equal", 83, 85),
    Sketcher.Constraint("Equal", 85, 87),
    Sketcher.Constraint("Parallel", 3, 6),
    Sketcher.Constraint("Parallel", 6, 18),
    Sketcher.Constraint("Parallel", 18, 21),
    Sketcher.Constraint("Parallel", 21, 33),
    Sketcher.Constraint("Parallel", 33, 36),
    Sketcher.Constraint("Parallel", 50, 53),
    Sketcher.Constraint("Parallel", 53, 61),
    Sketcher.Constraint("Parallel", 61, 64),
    Sketcher.Constraint("Parallel", 64, 76),
    Sketcher.Constraint("Parallel", 76, 88),
    Sketcher.Constraint("Horizontal", 13, 3, 15, 3),
    Sketcher.Constraint("Horizontal", 2, 3, 17, 3),
    Sketcher.Constraint("Horizontal", 5, 3, 20, 3),
    Sketcher.Constraint("Horizontal", 9, 3, 22, 3),
    Sketcher.Constraint("Horizontal", 28, 3, 30, 3),
    Sketcher.Constraint("Horizontal", 17, 3, 32, 3),
    Sketcher.Constraint("Horizontal", 20, 3, 35, 3),
    Sketcher.Constraint("Horizontal", 24, 3, 37, 3),
    Sketcher.Constraint("Horizontal", 49, 3, 60, 3),
    Sketcher.Constraint("Horizontal", 52, 3, 63, 3),
    Sketcher.Constraint("Horizontal", 56, 3, 65, 3),
    Sketcher.Constraint("Horizontal", 47, 3, 71, 3),
    Sketcher.Constraint("Horizontal", 63, 3, 75, 3),
    Sketcher.Constraint("Horizontal", 67, 3, 77, 3),
    Sketcher.Constraint("Horizontal", 73, 3, 83, 3),
    Sketcher.Constraint("Horizontal", 60, 3, 87, 3),
    Sketcher.Constraint("Horizontal", 3, 2, 18, 2),
    Sketcher.Constraint("Horizontal", 11, 2, 25, 2),
    Sketcher.Constraint("Horizontal", 18, 2, 33, 2),
    Sketcher.Constraint("Horizontal", 26, 2, 40, 2),
    Sketcher.Constraint("Horizontal", 50, 2, 61, 2),
    Sketcher.Constraint("Horizontal", 58, 2, 68, 2),
    Sketcher.Constraint("Horizontal", 69, 2, 80, 2),
    Sketcher.Constraint("Horizontal", 61, 2, 88, 2),
    Sketcher.Constraint("Equal", 8, 23),
    Sketcher.Constraint("Equal", 11, 26),
    Sketcher.Constraint("Equal", 23, 38),
    Sketcher.Constraint("Equal", 26, 41),
    Sketcher.Constraint("Equal", 44, 46),
    Sketcher.Constraint("Equal", 41, 58),
    Sketcher.Constraint("Equal", 55, 66),
    Sketcher.Constraint("Equal", 58, 69),
    Sketcher.Constraint("Equal", 66, 78),
    Sketcher.Constraint("Equal", 69, 81),
    Sketcher.Constraint("Equal", 40, 57),
    Sketcher.Constraint("Equal", 42, 59),
    Sketcher.Constraint("DistanceX", 14, 2, 14, 1, Q("1 in")),
    Sketcher.Constraint("Radius", 0, Q("0.25 in")),
    Sketcher.Constraint("DistanceX", 11, 2, 11, 1, Q("0.1 in")),
    Sketcher.Constraint("DistanceY", 10, 1, 10, 2, Q("1.05 in")),
    Sketcher.Constraint("DistanceY", 12, 1, 12, 2, Q("0.85 in")),
    Sketcher.Constraint("DistanceX", 0, 3, -1, 1, Q("2.5 in")),
    Sketcher.Constraint("DistanceX", -1, 1, 30, 3, Q("2.2 in")),
    Sketcher.Constraint("DistanceX", -1, 1, 60, 3, Q("0.3 in")),
    Sketcher.Constraint("DistanceX", 15, 2, -1, 1, Q("0.4 in")),
    Sketcher.Constraint("DistanceX", 47, 2, -1, 1, Q("1.8 in")),
    Sketcher.Constraint("DistanceX", -1, 1, 79, 2, Q("1.3 in")),
    Sketcher.Constraint("DistanceY", -1, 1, 0, 3, Q("1.925 in")),
    Sketcher.Constraint("DistanceY", 45, 3, -1, 1, Q("1.925 in")),
    Sketcher.Constraint("DistanceY", 1, 2, 1, 1, Q("19.109901 mm")),
    Sketcher.Constraint("Distance", 3, Q("22.919901 mm")),
    Sketcher.Constraint("DistanceY", 6, 2, -1, 1, Q("3.668701 mm")),
    Sketcher.Constraint("Distance", 53, Q("2.653848 mm")),
    Sketcher.Constraint("DistanceX", 8, 1, 8, 2, Q("8.591868 mm")),
    Sketcher.Constraint("DistanceX", 55, 2, 55, 1, Q("9.862676 mm")),
    Sketcher.Constraint("DistanceY", 48, 1, 48, 2, Q("19.271308 mm")),
    Sketcher.Constraint("DistanceY", 51, 1, 51, 2, Q("5.217057 mm")),
])
pocket1 = doc.addObject("PartDesign::Pocket", "Pocket")
body.addObject(pocket1)
pocket1.Profile = sketch3
pocket1.Length = Q("1 in")

sketch4 = doc.addObject("Sketcher::SketchObject", "Sketch003")
body.addObject(sketch4)
sketch4.AttachmentSupport = (doc.XY_Plane, [""])
sketch4.MapMode = "FlatFace"
sketch4.AttachmentOffset = App.Placement(Vector(0, 0, -0.1 * 25.4), App.Rotation())
add_polygon(sketch4, [(-81.28, 59.055), (-81.28, 62.865), (93.98, 62.865), (93.98, 59.055)])
add_polygon(sketch4, [(-90.17, -62.865), (-90.17, -59.055), (83.82, -59.055), (83.82, -62.865)])
sketch4.addConstraint([
    Sketcher.Constraint("Vertical", 0),
    Sketcher.Constraint("Horizontal", 1),
    Sketcher.Constraint("Vertical", 2),
    Sketcher.Constraint("Horizontal", 3),
    Sketcher.Constraint("Vertical", 4),
    Sketcher.Constraint("Horizontal", 5),
    Sketcher.Constraint("Vertical", 6),
    Sketcher.Constraint("Horizontal", 7),
    Sketcher.Constraint("Equal", 2, 4),
    Sketcher.Constraint("DistanceX", 1, 1, 1, 2, Q("6.9 in")),
    Sketcher.Constraint("DistanceX", 5, 1, 5, 2, Q("6.85 in")),
    Sketcher.Constraint("DistanceY", 0, 1, 0, 2, Q("0.15 in")),
    Sketcher.Constraint("DistanceX", 0, 2, -1, 1, Q("3.2 in")),
    Sketcher.Constraint("DistanceX", -1, 1, 5, 2, Q("3.3 in")),
    Sketcher.Constraint("DistanceY", 4, 2, 0, 2, Q("4.8 in")),
    Sketcher.Constraint("DistanceY", -1, 1, 0, 2, Q("2.475 in")),
])
pocket2 = doc.addObject("PartDesign::Pocket", "Pocket001")
body.addObject(pocket2)
pocket2.Profile = sketch4
pocket2.Length = Q("0.1 in")
pocket2.Reversed = True
doc.recompute()

chamfer = doc.addObject("PartDesign::Chamfer", "Chamfer")
body.addObject(chamfer)
chamfer.Base = (pocket2, edges_at(pocket2, [
    (-3.175, -59.055, -2.54),
    (83.82, -39.37, -2.54),
    (88.9, -19.685, -2.54),
    (93.98, 19.685, -2.54),
    (6.35, 59.055, -2.54),
    (-81.28, 39.37, -2.54),
    (-85.725, 19.685, -2.54),
    (-90.17, -19.685, -2.54),
    (-50.8, 55.245, -2.54),
    (-67.99, 53.385, -2.54),
    (-33.61, 53.385, -2.54),
    (-69.85, 39.34, -2.54),
    (-31.75, 38.1, -2.54),
    (-69.415, 27.475, -2.54),
    (-30.48, 27.305, -2.54),
    (-60.402, 17.055, -2.54),
    (-29.21, 13.97, -2.54),
    (-52.635, 5.789, -2.54),
    (-31.07, -3.855, -2.54),
    (-52.2, 0.639, -2.54),
    (-39.856, -5.715, -2.54),
    (-49.888, -2.511, -2.54),
    (-46.701, -5.181, -2.54),
    (8.89, 55.245, -2.54),
    (-8.3, 53.385, -2.54),
    (26.08, 53.385, -2.54),
    (-10.16, 39.34, -2.54),
    (27.94, 38.1, -2.54),
    (-9.725, 27.475, -2.54),
    (29.21, 27.305, -2.54),
    (-0.712, 17.055, -2.54),
    (30.48, 13.97, -2.54),
    (7.055, 5.789, -2.54),
    (28.62, -3.855, -2.54),
    (7.49, 0.639, -2.54),
    (19.834, -5.715, -2.54),
    (9.802, -2.511, -2.54),
    (12.989, -5.181, -2.54),
    (68.58, 55.245, -2.54),
    (51.39, 53.385, -2.54),
    (85.77, 53.385, -2.54),
    (49.53, 39.34, -2.54),
    (87.63, 38.1, -2.54),
    (49.965, 27.475, -2.54),
    (88.9, 27.305, -2.54),
    (58.978, 17.055, -2.54),
    (90.17, 13.97, -2.54),
    (66.745, 5.789, -2.54),
    (88.31, -3.855, -2.54),
    (67.18, 0.639, -2.54),
    (79.524, -5.715, -2.54),
    (69.492, -2.511, -2.54),
    (72.679, -5.181, -2.54),
    (-86.36, -13.97, -2.54),
    (-85.09, -27.305, -2.54),
    (-84.5, 3.855, -2.54),
    (-83.82, -38.1, -2.54),
    (-75.079, 5.715, -2.54),
    (-81.96, -53.385, -2.54),
    (-67.47, 5.123, -2.54),
    (-64.77, -55.245, -2.54),
    (-64.436, 2.442, -2.54),
    (-47.58, -53.385, -2.54),
    (-62.472, -0.486, -2.54),
    (-45.72, -39.259, -2.54),
    (-62.087, -5.273, -2.54),
    (-46.105, -27.446, -2.54),
    (-54.651, -16.707, -2.54),
    (-5.08, -55.245, -2.54),
    (12.11, -53.385, -2.54),
    (-22.27, -53.385, -2.54),
    (13.97, -39.259, -2.54),
    (-24.13, -38.1, -2.54),
    (13.585, -27.446, -2.54),
    (-25.4, -27.305, -2.54),
    (5.039, -16.707, -2.54),
    (-26.67, -13.97, -2.54),
    (-2.397, -5.273, -2.54),
    (-24.81, 3.855, -2.54),
    (-2.782, -0.486, -2.54),
    (-15.389, 5.715, -2.54),
    (-4.746, 2.442, -2.54),
    (-7.78, 5.123, -2.54),
    (57.293, -5.273, -2.54),
    (56.908, -0.486, -2.54),
    (64.729, -16.707, -2.54),
    (54.944, 2.442, -2.54),
    (73.275, -27.446, -2.54),
    (51.91, 5.123, -2.54),
    (73.66, -39.259, -2.54),
    (44.301, 5.715, -2.54),
    (71.8, -53.385, -2.54),
    (34.88, 3.855, -2.54),
    (54.61, -55.245, -2.54),
    (33.02, -13.97, -2.54),
    (37.42, -53.385, -2.54),
    (34.29, -27.305, -2.54),
    (35.56, -38.1, -2.54),
]))
chamfer.ChamferType = "Two distances"
chamfer.Size = Q("0.03 in")
chamfer.Size2 = 1.319823

doc.recompute()
